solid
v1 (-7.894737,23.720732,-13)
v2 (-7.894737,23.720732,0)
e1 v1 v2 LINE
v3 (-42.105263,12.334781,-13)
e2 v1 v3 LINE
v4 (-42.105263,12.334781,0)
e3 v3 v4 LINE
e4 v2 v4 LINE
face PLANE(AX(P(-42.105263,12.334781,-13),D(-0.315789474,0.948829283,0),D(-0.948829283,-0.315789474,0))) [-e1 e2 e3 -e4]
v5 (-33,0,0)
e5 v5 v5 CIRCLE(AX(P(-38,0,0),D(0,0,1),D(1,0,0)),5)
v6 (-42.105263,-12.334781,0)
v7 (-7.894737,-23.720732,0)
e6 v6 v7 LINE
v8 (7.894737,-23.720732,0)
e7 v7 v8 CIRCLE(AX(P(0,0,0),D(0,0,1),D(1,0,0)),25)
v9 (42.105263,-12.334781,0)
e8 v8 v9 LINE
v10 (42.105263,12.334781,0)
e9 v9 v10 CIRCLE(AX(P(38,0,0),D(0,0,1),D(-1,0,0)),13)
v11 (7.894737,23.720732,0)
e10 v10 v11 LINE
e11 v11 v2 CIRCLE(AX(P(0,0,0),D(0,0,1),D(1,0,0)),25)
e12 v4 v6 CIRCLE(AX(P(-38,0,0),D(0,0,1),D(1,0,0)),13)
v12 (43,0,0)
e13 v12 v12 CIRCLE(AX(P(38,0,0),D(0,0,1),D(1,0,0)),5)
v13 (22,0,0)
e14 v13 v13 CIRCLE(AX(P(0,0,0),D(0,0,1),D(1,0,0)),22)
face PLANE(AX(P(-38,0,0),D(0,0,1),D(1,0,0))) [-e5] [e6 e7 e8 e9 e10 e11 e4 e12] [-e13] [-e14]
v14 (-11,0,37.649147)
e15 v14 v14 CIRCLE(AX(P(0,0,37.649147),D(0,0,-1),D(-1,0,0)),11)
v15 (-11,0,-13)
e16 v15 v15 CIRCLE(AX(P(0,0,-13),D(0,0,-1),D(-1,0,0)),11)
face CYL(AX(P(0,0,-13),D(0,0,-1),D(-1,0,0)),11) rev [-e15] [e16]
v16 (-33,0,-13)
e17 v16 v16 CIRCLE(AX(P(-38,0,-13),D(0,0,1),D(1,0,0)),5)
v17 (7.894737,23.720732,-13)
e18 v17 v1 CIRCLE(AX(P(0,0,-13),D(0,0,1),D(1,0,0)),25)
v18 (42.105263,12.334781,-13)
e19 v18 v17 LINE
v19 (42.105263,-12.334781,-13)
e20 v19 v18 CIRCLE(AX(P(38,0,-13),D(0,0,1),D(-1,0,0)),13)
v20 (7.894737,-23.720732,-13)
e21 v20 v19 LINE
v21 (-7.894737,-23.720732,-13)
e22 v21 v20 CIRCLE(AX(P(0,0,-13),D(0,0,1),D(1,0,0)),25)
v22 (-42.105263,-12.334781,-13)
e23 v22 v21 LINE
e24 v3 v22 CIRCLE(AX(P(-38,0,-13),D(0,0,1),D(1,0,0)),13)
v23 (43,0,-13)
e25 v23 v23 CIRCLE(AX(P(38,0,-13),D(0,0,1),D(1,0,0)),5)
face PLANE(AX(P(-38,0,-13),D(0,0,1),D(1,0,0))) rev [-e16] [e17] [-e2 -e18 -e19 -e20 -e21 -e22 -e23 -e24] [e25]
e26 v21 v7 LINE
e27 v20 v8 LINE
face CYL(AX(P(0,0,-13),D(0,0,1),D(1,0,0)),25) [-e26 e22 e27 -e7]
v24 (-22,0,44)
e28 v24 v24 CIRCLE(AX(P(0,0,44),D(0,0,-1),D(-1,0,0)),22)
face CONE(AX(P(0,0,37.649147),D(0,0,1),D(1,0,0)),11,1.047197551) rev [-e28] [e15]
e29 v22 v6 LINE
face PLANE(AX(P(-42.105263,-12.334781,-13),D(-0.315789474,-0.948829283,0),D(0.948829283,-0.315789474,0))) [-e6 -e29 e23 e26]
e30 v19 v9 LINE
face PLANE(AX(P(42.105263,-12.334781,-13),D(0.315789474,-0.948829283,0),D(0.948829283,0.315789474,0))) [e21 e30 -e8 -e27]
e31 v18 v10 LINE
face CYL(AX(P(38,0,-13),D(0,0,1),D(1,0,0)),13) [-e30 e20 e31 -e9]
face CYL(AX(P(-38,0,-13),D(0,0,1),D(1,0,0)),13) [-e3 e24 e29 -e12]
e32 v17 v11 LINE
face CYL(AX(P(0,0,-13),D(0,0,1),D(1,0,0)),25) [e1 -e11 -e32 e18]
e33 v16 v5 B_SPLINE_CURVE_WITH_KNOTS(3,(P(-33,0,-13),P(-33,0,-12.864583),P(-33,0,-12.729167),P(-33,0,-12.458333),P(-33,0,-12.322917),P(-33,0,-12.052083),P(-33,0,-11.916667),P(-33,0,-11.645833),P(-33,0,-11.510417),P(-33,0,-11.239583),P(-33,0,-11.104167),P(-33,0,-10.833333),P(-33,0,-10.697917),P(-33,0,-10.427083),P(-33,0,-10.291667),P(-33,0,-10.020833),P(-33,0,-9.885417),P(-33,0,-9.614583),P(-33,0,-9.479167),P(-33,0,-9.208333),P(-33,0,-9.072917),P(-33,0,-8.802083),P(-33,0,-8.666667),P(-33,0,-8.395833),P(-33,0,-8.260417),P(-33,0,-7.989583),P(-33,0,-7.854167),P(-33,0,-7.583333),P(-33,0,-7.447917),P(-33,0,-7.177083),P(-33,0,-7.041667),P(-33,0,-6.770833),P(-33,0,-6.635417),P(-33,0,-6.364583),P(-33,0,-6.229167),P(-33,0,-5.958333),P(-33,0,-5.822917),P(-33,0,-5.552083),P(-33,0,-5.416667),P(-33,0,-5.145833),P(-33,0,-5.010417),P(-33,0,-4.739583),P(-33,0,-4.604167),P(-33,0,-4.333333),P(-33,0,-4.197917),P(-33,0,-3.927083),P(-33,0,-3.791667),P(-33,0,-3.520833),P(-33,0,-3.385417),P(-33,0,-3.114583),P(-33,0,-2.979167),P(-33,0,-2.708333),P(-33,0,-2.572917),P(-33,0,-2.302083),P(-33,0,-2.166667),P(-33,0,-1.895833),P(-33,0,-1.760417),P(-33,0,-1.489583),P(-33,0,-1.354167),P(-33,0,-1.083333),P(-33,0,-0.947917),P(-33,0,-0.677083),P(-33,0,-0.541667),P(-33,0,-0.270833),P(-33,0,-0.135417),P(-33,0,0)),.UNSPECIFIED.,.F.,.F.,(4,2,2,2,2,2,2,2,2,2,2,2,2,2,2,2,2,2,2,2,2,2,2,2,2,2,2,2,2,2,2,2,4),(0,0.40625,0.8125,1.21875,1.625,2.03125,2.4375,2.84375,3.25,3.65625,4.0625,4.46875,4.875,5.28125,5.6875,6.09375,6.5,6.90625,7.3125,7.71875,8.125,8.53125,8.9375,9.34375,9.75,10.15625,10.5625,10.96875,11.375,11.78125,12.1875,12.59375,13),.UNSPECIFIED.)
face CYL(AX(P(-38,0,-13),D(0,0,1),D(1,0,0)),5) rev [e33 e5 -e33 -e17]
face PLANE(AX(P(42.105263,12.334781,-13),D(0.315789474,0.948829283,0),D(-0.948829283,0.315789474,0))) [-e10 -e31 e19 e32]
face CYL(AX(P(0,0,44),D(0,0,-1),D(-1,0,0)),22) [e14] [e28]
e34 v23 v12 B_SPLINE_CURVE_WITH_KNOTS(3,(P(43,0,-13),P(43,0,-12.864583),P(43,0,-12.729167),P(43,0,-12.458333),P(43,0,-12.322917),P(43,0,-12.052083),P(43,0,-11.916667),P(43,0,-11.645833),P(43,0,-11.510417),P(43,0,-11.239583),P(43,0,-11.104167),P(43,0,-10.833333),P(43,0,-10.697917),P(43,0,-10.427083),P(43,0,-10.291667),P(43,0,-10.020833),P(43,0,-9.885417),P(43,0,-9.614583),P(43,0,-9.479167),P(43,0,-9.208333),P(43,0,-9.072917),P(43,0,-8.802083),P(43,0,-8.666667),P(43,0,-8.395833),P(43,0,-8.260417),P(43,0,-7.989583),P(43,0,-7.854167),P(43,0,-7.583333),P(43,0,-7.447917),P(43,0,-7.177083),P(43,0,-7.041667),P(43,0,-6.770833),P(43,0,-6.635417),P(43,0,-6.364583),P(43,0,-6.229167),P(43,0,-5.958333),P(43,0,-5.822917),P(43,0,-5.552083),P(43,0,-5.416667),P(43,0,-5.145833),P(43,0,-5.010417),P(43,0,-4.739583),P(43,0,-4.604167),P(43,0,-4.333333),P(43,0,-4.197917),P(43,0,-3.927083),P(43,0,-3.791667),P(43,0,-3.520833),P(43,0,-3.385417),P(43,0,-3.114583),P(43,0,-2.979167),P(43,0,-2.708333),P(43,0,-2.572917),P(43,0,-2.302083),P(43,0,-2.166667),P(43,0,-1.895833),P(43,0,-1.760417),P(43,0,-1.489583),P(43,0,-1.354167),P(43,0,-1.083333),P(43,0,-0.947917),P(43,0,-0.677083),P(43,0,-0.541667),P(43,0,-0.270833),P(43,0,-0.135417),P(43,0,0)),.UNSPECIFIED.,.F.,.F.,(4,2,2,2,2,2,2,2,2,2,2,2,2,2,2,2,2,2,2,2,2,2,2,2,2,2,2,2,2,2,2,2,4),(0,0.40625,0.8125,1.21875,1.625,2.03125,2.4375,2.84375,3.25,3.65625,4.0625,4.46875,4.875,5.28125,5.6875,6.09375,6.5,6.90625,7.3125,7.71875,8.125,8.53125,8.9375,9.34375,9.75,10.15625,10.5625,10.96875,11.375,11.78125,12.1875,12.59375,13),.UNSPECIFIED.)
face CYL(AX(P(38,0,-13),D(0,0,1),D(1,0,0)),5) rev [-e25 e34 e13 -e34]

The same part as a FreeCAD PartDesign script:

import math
import FreeCAD as App
import Part
import Sketcher

V = App.Vector
Q = App.Units.Quantity


def add_polygon(sketch, points):
    """Adds a closed chain of lines whose ends are joined by coincident constraints."""
    first, n = sketch.GeometryCount, len(points)
    for a, b in zip(points, points[1:] + points[:1]):
        sketch.addGeometry(Part.LineSegment(App.Vector(*a, 0), App.Vector(*b, 0)), False)
    for i in range(n):
        sketch.addConstraint(Sketcher.Constraint("Coincident", first + i, 2, first + (i + 1) % n, 1))

doc = App.newDocument("Part")
body = doc.addObject("PartDesign::Body", "Body")

# Sketch on XY plane
sketch1 = doc.addObject("Sketcher::SketchObject", "Sketch")
body.addObject(sketch1)
sketch1.AttachmentSupport = (doc.XY_Plane, [""])
sketch1.MapMode = "FlatFace"
sketch1.addGeometry(Part.LineSegment(V(-8, 24, 0), V(-42, 12, 0)), False)
sketch1.addGeometry(Part.ArcOfCircle(Part.Circle(V(-38, 0, 0), V(0, 0, 1), 13), math.radians(108), math.radians(252)), False)
sketch1.addGeometry(Part.LineSegment(V(-42, -12, 0), V(-8, -24, 0)), False)
sketch1.addGeometry(Part.ArcOfCircle(Part.Circle(V(0, 0, 0), V(0, 0, 1), 25), math.radians(-108), math.radians(-72)), False)
sketch1.addGeometry(Part.LineSegment(V(8, -24, 0), V(42, -12, 0)), False)
sketch1.addGeometry(Part.ArcOfCircle(Part.Circle(V(38, 0, 0), V(0, 0, 1), 13), math.radians(-72), math.radians(72)), False)
sketch1.addGeometry(Part.LineSegment(V(42, 12, 0), V(8, 24, 0)), False)
sketch1.addGeometry(Part.ArcOfCircle(Part.Circle(V(0, 0, 0), V(0, 0, 1), 25), math.radians(72), math.radians(108)), False)
sketch1.addGeometry(Part.Circle(V(38, 0, 0), V(0, 0, 1), 5), False)
sketch1.addGeometry(Part.Circle(V(-38, 0, 0), V(0, 0, 1), 5), False)
sketch1.addConstraint(Sketcher.Constraint("Tangent", 0, 2, 1, 1))
sketch1.addConstraint(Sketcher.Constraint("Tangent", 1, 2, 2, 1))
sketch1.addConstraint(Sketcher.Constraint("Tangent", 2, 2, 3, 1))
sketch1.addConstraint(Sketcher.Constraint("Tangent", 3, 2, 4, 1))
sketch1.addConstraint(Sketcher.Constraint("Tangent", 4, 2, 5, 1))
sketch1.addConstraint(Sketcher.Constraint("Tangent", 5, 2, 6, 1))
sketch1.addConstraint(Sketcher.Constraint("Tangent", 6, 2, 7, 1))
sketch1.addConstraint(Sketcher.Constraint("Tangent", 7, 2, 0, 1))
sketch1.addConstraint(Sketcher.Constraint("Coincident", 3, 3, -1, 1))
sketch1.addConstraint(Sketcher.Constraint("Coincident", 7, 3, -1, 1))
sketch1.addConstraint(Sketcher.Constraint("Coincident", 8, 3, 5, 3))
sketch1.addConstraint(Sketcher.Constraint("Coincident", 9, 3, 1, 3))
sketch1.addConstraint(Sketcher.Constraint("Equal", 1, 5))
sketch1.addConstraint(Sketcher.Constraint("Equal", 3, 7))
sketch1.addConstraint(Sketcher.Constraint("Equal", 8, 9))
sketch1.addConstraint(Sketcher.Constraint("Symmetric", 1, 3, 5, 3, -1, 1))
sketch1.addConstraint(Sketcher.Constraint("PointOnObject", 1, 3, -1))
sketch1.addConstraint(Sketcher.Constraint("Diameter", 8, Q("10 mm")))
sketch1.addConstraint(Sketcher.Constraint("Radius", 1, Q("13 mm")))
sketch1.addConstraint(Sketcher.Constraint("Radius", 3, Q("25 mm")))
sketch1.addConstraint(Sketcher.Constraint("DistanceX", 1, 3, -1, 1, Q("38 mm")))
pad1 = doc.addObject("PartDesign::Pad", "Pad")
body.addObject(pad1)
pad1.Profile = sketch1
pad1.Length = 13
pad1.Reversed = True

# Sketch on XY plane
sketch2 = doc.addObject("Sketcher::SketchObject", "Sketch001")
body.addObject(sketch2)
sketch2.AttachmentSupport = (doc.XY_Plane, [""])
sketch2.MapMode = "FlatFace"
sketch2.addGeometry(Part.Circle(V(0, 0, 0), V(0, 0, 1), 22), False)
sketch2.addConstraint(Sketcher.Constraint("Coincident", 0, 3, -1, 1))
sketch2.addConstraint(Sketcher.Constraint("Diameter", 0, Q("44 mm")))
pad2 = doc.addObject("PartDesign::Pad", "Pad001")
body.addObject(pad2)
pad2.Profile = sketch2
pad2.Length = 44

# Sketch on XZ plane
sketch3 = doc.addObject("Sketcher::SketchObject", "Sketch002")
body.addObject(sketch3)
sketch3.AttachmentSupport = (doc.XZ_Plane, [""])
sketch3.MapMode = "FlatFace"
add_polygon(sketch3, [(0, -13), (-11, -13), (-11, 38), (-22, 44), (0, 44)])  # lines 0-4
sketch3.addConstraint(Sketcher.Constraint("Horizontal", 0))
sketch3.addConstraint(Sketcher.Constraint("Vertical", 1))
sketch3.addConstraint(Sketcher.Constraint("Horizontal", 3))
sketch3.addConstraint(Sketcher.Constraint("Vertical", 4))
sketch3.addConstraint(Sketcher.Constraint("PointOnObject", 3, 2, -2))
sketch3.addConstraint(Sketcher.Constraint("DistanceX", 0, 2, 0, 1, Q("11 mm")))
sketch3.addConstraint(Sketcher.Constraint("DistanceX", 3, 1, 3, 2, Q("22 mm")))
sketch3.addConstraint(Sketcher.Constraint("DistanceY", 4, 2, 4, 1, Q("57 mm")))
sketch3.addConstraint(Sketcher.Constraint("Angle", 2, Q("150 deg")))
sketch3.addConstraint(Sketcher.Constraint("DistanceY", 0, 2, -1, 1, Q("13 mm")))
groove = doc.addObject("PartDesign::Groove", "Groove")
body.addObject(groove)
groove.Profile = sketch3
groove.ReferenceAxis = (sketch3, ["V_Axis"])
groove.Angle = 360

doc.recompute()
